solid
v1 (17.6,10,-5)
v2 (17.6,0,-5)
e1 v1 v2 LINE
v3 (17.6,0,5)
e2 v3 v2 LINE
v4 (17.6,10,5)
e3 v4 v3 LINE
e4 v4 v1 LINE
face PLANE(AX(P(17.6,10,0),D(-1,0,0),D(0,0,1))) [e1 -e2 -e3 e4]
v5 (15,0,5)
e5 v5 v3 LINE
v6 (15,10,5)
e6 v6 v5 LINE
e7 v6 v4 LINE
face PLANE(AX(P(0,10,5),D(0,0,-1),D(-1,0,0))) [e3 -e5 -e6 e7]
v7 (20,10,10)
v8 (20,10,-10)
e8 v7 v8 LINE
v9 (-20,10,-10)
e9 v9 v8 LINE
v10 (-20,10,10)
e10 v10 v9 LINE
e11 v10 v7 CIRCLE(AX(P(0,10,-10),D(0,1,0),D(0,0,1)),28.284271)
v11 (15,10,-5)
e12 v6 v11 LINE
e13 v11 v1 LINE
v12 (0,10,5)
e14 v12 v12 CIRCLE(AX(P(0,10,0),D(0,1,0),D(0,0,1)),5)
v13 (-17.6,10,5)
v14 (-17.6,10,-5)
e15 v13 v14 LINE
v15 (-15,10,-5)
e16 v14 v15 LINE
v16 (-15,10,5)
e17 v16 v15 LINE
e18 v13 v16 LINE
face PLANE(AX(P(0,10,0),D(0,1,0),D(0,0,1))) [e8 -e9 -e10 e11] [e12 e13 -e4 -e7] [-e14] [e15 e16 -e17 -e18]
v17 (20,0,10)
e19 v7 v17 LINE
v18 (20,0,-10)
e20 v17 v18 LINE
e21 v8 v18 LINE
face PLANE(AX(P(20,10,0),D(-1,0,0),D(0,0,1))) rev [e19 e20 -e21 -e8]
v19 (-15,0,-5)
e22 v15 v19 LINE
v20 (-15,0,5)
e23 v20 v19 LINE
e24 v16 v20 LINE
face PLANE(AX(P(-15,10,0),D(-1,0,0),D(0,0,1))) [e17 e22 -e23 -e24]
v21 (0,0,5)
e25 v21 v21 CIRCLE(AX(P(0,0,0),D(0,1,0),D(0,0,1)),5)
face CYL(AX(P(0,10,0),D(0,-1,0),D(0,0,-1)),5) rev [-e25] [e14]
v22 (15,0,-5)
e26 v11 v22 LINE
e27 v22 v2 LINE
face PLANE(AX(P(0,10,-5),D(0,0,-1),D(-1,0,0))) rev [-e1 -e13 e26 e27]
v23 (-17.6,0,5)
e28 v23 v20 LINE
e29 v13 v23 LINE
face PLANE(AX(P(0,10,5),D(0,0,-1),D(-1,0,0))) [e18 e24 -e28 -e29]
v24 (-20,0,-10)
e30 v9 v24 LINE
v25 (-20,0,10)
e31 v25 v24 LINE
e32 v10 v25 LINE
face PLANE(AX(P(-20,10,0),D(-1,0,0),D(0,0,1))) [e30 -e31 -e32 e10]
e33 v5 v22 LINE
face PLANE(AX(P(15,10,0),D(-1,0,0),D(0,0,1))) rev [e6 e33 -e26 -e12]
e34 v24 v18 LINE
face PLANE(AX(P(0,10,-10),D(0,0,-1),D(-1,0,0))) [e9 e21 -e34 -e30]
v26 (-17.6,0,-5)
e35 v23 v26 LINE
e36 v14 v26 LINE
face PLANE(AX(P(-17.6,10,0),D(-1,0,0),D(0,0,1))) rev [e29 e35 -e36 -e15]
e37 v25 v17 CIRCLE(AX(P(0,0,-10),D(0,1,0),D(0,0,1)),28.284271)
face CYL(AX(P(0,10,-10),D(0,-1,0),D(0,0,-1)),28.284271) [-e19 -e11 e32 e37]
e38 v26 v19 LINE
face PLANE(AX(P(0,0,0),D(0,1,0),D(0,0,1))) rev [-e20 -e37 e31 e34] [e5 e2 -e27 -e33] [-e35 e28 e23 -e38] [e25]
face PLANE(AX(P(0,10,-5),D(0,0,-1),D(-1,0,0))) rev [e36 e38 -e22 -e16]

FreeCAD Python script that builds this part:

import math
import FreeCAD as App
import Part
import Sketcher
from FreeCAD import Vector
Q = App.Units.Quantity


def add_polygon(sketch, points):
    """Adds a closed chain of lines whose ends are joined by coincident constraints."""
    first, n = sketch.GeometryCount, len(points)
    for a, b in zip(points, points[1:] + points[:1]):
        sketch.addGeometry(Part.LineSegment(App.Vector(*a, 0), App.Vector(*b, 0)), False)
    for i in range(n):
        sketch.addConstraint(Sketcher.Constraint("Coincident", first + i, 2, first + (i + 1) % n, 1))

doc = App.newDocument("Part")
body = doc.addObject("PartDesign::Body", "Body")

# Sketch on XZ plane
sketch1 = body.newObject("Sketcher::SketchObject", "Sketch")
sketch1.AttachmentSupport = (doc.getObject("XZ_Plane"), [""])
sketch1.MapMode = "FlatFace"
sketch1.addGeometry(Part.LineSegment(Vector(-20, -10, 0), Vector(-20, 10, 0)), False)  # 0
sketch1.addGeometry(Part.ArcOfCircle(Part.Circle(Vector(0, -10, 0), Vector(0, 0, 1), 28.284271), math.radians(45), math.radians(135)), False)  # 1
sketch1.addGeometry(Part.LineSegment(Vector(20, 10, 0), Vector(20, -10, 0)), False)  # 2
sketch1.addGeometry(Part.LineSegment(Vector(20, -10, 0), Vector(-20, -10, 0)), False)  # 3
add_polygon(sketch1, [(-15, 5), (-17.6, 5), (-17.6, -5), (-15, -5)])  # lines 4-7
sketch1.addGeometry(Part.Circle(Vector(0, 0, 0), Vector(0, 0, 1), 5), False)  # 8
add_polygon(sketch1, [(17.6, 5), (15, 5), (15, -5), (17.6, -5)])  # lines 9-12
sketch1.addConstraint(Sketcher.Constraint("Coincident", 0, 2, 1, 2))
sketch1.addConstraint(Sketcher.Constraint("Coincident", 1, 1, 2, 1))
sketch1.addConstraint(Sketcher.Constraint("Coincident", 2, 2, 3, 1))
sketch1.addConstraint(Sketcher.Constraint("Coincident", 3, 2, 0, 1))
sketch1.addConstraint(Sketcher.Constraint("Vertical", 0))
sketch1.addConstraint(Sketcher.Constraint("Vertical", 2))
sketch1.addConstraint(Sketcher.Constraint("Horizontal", 3))
sketch1.addConstraint(Sketcher.Constraint("Horizontal", 4))
sketch1.addConstraint(Sketcher.Constraint("Vertical", 5))
sketch1.addConstraint(Sketcher.Constraint("Horizontal", 6))
sketch1.addConstraint(Sketcher.Constraint("Vertical", 7))
sketch1.addConstraint(Sketcher.Constraint("Horizontal", 9))
sketch1.addConstraint(Sketcher.Constraint("Vertical", 10))
sketch1.addConstraint(Sketcher.Constraint("Horizontal", 11))
sketch1.addConstraint(Sketcher.Constraint("Vertical", 12))
sketch1.addConstraint(Sketcher.Constraint("Coincident", 8, 3, -1, 1))
sketch1.addConstraint(Sketcher.Constraint("Symmetric", 0, 2, 2, 2, -1, 1))
sketch1.addConstraint(Sketcher.Constraint("Symmetric", 6, 2, 9, 2, -1, 1))
sketch1.addConstraint(Sketcher.Constraint("Symmetric", 4, 2, 11, 2, -1, 1))
sketch1.addConstraint(Sketcher.Constraint("PointOnObject", 1, 3, -2))
sketch1.addConstraint(Sketcher.Constraint("Horizontal", 1, 3, 2, 2))
sketch1.addConstraint(Sketcher.Constraint("Horizontal", 7, 2, 9, 2))
sketch1.addConstraint(Sketcher.Constraint("Diameter", 8, Q("10 mm")))
sketch1.addConstraint(Sketcher.Constraint("DistanceX", 3, 2, 3, 1, Q("40 mm")))
sketch1.addConstraint(Sketcher.Constraint("DistanceY", 0, 1, 0, 2, Q("20 mm")))
sketch1.addConstraint(Sketcher.Constraint("DistanceY", 5, 2, 5, 1, Q("10 mm")))
sketch1.addConstraint(Sketcher.Constraint("DistanceX", 4, 2, 4, 1, Q("2.6 mm")))
sketch1.addConstraint(Sketcher.Constraint("DistanceX", 6, 2, -1, 1, Q("15 mm")))
pad1 = body.newObject("PartDesign::Pad", "Pad")
pad1.Profile = sketch1
pad1.Length = 10
pad1.Reversed = True

doc.recompute()
